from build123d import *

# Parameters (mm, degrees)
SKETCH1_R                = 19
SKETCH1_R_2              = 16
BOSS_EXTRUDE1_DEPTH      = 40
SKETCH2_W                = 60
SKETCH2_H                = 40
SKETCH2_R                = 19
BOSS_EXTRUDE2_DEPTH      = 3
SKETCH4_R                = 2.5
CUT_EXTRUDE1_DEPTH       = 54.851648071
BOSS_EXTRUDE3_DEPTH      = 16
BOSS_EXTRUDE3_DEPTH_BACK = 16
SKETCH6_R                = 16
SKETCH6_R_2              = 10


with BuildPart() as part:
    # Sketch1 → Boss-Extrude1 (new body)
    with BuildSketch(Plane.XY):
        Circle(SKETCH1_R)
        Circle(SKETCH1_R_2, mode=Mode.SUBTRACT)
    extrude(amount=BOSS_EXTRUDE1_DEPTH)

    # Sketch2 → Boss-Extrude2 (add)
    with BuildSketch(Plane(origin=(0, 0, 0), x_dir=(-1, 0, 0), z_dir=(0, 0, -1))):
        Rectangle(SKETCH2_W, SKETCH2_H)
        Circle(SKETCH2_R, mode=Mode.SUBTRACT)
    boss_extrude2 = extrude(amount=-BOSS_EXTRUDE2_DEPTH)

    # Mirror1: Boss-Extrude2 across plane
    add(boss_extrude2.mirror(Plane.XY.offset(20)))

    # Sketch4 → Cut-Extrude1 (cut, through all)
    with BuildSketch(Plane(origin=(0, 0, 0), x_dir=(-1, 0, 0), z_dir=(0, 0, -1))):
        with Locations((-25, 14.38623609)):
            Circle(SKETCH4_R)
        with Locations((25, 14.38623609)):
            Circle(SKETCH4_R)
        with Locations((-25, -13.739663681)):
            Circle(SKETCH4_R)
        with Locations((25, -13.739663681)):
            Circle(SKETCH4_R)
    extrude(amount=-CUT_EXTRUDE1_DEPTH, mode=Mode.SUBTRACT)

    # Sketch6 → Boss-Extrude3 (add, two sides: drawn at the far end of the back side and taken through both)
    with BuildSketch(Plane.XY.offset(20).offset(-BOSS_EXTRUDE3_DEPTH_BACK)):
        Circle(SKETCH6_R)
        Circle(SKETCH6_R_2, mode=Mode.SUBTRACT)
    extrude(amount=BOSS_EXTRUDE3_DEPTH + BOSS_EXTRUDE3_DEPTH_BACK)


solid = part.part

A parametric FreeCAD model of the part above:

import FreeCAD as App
import Part
import Sketcher

V = App.Vector

doc = App.newDocument("Part")
params = doc.addObject("Spreadsheet::Sheet", "Params")
for row, (alias, value) in enumerate([
    ("sketch1_diameter", "38 mm"),
    ("sketch1_diameter2", "32 mm"),
    ("pad1_length", "40 mm"),
    ("sketch2_diameter", "38 mm"),
    ("sketch2_width", "60 mm"),
    ("sketch2_height", "40 mm"),
    ("pad2_length", "3 mm"),
    ("sketch3_diameter", "5 mm"),
    ("sketch4_diameter", "32 mm"),
    ("sketch4_diameter2", "20 mm"),
    ("pad3_length", "16 mm"),
    ("pad3_length2", "16 mm"),
], start=1):
    params.set(f"A{row}", alias)
    params.set(f"B{row}", "=" + value)
    params.setAlias(f"B{row}", alias)

body = doc.addObject("PartDesign::Body", "Body")

sketch1 = doc.addObject("Sketcher::SketchObject", "Sketch")
body.addObject(sketch1)
sketch1.AttachmentSupport = (doc.XY_Plane, [""])
sketch1.MapMode = "FlatFace"
sketch1.addGeometry([
    Part.Circle(V(0, 0, 0), V(0, 0, 1), 19),
    Part.Circle(V(0, 0, 0), V(0, 0, 1), 16),
], False)
sketch1.addConstraint([
    Sketcher.Constraint("Coincident", 0, 3, -1, 1),
    Sketcher.Constraint("Coincident", 1, 3, -1, 1),
    Sketcher.Constraint("Diameter", 0, 38.0),
    Sketcher.Constraint("Diameter", 1, 32.0),
])
sketch1.setExpression("Constraints[2]", "Params.sketch1_diameter")
sketch1.setExpression("Constraints[3]", "Params.sketch1_diameter2")
pad1 = doc.addObject("PartDesign::Pad", "Pad")
body.addObject(pad1)
pad1.Profile = sketch1
pad1.setExpression("Length", "Params.pad1_length")

sketch2 = doc.addObject("Sketcher::SketchObject", "Sketch001")
body.addObject(sketch2)
sketch2.AttachmentSupport = (doc.XY_Plane, [""])
sketch2.MapMode = "FlatFace"
sketch2.addGeometry([
    Part.LineSegment(V(30, 20, 0), V(30, -20, 0)),
    Part.LineSegment(V(30, -20, 0), V(-30, -20, 0)),
    Part.LineSegment(V(-30, -20, 0), V(-30, 20, 0)),
    Part.LineSegment(V(-30, 20, 0), V(30, 20, 0)),
    Part.Circle(V(0, 0, 0), V(0, 0, 1), 19),
], False)
sketch2.addConstraint([
    Sketcher.Constraint("Coincident", 0, 2, 1, 1),
    Sketcher.Constraint("Coincident", 1, 2, 2, 1),
    Sketcher.Constraint("Coincident", 2, 2, 3, 1),
    Sketcher.Constraint("Coincident", 3, 2, 0, 1),
    Sketcher.Constraint("Vertical", 0),
    Sketcher.Constraint("Horizontal", 1),
    Sketcher.Constraint("Vertical", 2),
    Sketcher.Constraint("Horizontal", 3),
    Sketcher.Constraint("Coincident", 4, 3, -1, 1),
    Sketcher.Constraint("Symmetric", 0, 2, 2, 2, -1, 1),
    Sketcher.Constraint("Diameter", 4, 38.0),
    Sketcher.Constraint("DistanceX", 1, 2, 1, 1, 60.0),
    Sketcher.Constraint("DistanceY", 0, 2, 0, 1, 40.0),
])
sketch2.setExpression("Constraints[10]", "Params.sketch2_diameter")
sketch2.setExpression("Constraints[11]", "Params.sketch2_width")
sketch2.setExpression("Constraints[12]", "Params.sketch2_height")
pad2 = doc.addObject("PartDesign::Pad", "Pad001")
body.addObject(pad2)
pad2.Profile = sketch2
pad2.setExpression("Length", "Params.pad2_length")
doc.recompute()

datumplane = doc.addObject("PartDesign::Plane", "DatumPlane")
body.addObject(datumplane)
datumplane.AttachmentSupport = (doc.XY_Plane, [""])
datumplane.MapMode = "FlatFace"
datumplane.AttachmentOffset = App.Placement(V(0, 0, 20), App.Rotation())
mirrored = doc.addObject("PartDesign::Mirrored", "Mirrored")
body.addObject(mirrored)
mirrored.Originals = [pad2]
mirrored.MirrorPlane = (datumplane, [""])
body.Tip = mirrored

sketch3 = doc.addObject("Sketcher::SketchObject", "Sketch002")
body.addObject(sketch3)
sketch3.AttachmentSupport = (doc.XY_Plane, [""])
sketch3.MapMode = "FlatFace"
sketch3.addGeometry([
    Part.Circle(V(25, 14.386236, 0), V(0, 0, 1), 2.5),
    Part.Circle(V(-25, 14.386236, 0), V(0, 0, 1), 2.5),
    Part.Circle(V(25, -13.739664, 0), V(0, 0, 1), 2.5),
    Part.Circle(V(-25, -13.739664, 0), V(0, 0, 1), 2.5),
], False)
sketch3.addConstraint([
    Sketcher.Constraint("Equal", 0, 1),
    Sketcher.Constraint("Equal", 1, 2),
    Sketcher.Constraint("Equal", 2, 3),
    Sketcher.Constraint("Symmetric", 0, 3, 1, 3, -2),
    Sketcher.Constraint("Symmetric", 2, 3, 3, 3, -2),
    Sketcher.Constraint("Vertical", 0, 3, 2, 3),
    Sketcher.Constraint("Diameter", 0, 5.0),
    Sketcher.Constraint("DistanceX", -1, 1, 0, 3, 25.0),
    Sketcher.Constraint("DistanceY", 2, 3, 0, 3, 28.1259),
    Sketcher.Constraint("DistanceY", -1, 1, 0, 3, 14.386236),
])
sketch3.setExpression("Constraints[6]", "Params.sketch3_diameter")
pocket1 = doc.addObject("PartDesign::Pocket", "Pocket")
body.addObject(pocket1)
pocket1.Profile = sketch3
pocket1.Type = "ThroughAll"
pocket1.Reversed = True

sketch4 = doc.addObject("Sketcher::SketchObject", "Sketch003")
body.addObject(sketch4)
sketch4.AttachmentSupport = (doc.XY_Plane, [""])
sketch4.MapMode = "FlatFace"
sketch4.AttachmentOffset = App.Placement(V(0, 0, 20), App.Rotation())
sketch4.addGeometry([
    Part.Circle(V(0, 0, 0), V(0, 0, 1), 16),
    Part.Circle(V(0, 0, 0), V(0, 0, 1), 10),
], False)
sketch4.addConstraint([
    Sketcher.Constraint("Coincident", 0, 3, -1, 1),
    Sketcher.Constraint("Coincident", 1, 3, -1, 1),
    Sketcher.Constraint("Diameter", 0, 32.0),
    Sketcher.Constraint("Diameter", 1, 20.0),
])
sketch4.setExpression("Constraints[2]", "Params.sketch4_diameter")
sketch4.setExpression("Constraints[3]", "Params.sketch4_diameter2")
pad3 = doc.addObject("PartDesign::Pad", "Pad002")
body.addObject(pad3)
pad3.Profile = sketch4
pad3.Type = "TwoLengths"
pad3.setExpression("Length", "Params.pad3_length")
pad3.setExpression("Length2", "Params.pad3_length2")

doc.recompute()
